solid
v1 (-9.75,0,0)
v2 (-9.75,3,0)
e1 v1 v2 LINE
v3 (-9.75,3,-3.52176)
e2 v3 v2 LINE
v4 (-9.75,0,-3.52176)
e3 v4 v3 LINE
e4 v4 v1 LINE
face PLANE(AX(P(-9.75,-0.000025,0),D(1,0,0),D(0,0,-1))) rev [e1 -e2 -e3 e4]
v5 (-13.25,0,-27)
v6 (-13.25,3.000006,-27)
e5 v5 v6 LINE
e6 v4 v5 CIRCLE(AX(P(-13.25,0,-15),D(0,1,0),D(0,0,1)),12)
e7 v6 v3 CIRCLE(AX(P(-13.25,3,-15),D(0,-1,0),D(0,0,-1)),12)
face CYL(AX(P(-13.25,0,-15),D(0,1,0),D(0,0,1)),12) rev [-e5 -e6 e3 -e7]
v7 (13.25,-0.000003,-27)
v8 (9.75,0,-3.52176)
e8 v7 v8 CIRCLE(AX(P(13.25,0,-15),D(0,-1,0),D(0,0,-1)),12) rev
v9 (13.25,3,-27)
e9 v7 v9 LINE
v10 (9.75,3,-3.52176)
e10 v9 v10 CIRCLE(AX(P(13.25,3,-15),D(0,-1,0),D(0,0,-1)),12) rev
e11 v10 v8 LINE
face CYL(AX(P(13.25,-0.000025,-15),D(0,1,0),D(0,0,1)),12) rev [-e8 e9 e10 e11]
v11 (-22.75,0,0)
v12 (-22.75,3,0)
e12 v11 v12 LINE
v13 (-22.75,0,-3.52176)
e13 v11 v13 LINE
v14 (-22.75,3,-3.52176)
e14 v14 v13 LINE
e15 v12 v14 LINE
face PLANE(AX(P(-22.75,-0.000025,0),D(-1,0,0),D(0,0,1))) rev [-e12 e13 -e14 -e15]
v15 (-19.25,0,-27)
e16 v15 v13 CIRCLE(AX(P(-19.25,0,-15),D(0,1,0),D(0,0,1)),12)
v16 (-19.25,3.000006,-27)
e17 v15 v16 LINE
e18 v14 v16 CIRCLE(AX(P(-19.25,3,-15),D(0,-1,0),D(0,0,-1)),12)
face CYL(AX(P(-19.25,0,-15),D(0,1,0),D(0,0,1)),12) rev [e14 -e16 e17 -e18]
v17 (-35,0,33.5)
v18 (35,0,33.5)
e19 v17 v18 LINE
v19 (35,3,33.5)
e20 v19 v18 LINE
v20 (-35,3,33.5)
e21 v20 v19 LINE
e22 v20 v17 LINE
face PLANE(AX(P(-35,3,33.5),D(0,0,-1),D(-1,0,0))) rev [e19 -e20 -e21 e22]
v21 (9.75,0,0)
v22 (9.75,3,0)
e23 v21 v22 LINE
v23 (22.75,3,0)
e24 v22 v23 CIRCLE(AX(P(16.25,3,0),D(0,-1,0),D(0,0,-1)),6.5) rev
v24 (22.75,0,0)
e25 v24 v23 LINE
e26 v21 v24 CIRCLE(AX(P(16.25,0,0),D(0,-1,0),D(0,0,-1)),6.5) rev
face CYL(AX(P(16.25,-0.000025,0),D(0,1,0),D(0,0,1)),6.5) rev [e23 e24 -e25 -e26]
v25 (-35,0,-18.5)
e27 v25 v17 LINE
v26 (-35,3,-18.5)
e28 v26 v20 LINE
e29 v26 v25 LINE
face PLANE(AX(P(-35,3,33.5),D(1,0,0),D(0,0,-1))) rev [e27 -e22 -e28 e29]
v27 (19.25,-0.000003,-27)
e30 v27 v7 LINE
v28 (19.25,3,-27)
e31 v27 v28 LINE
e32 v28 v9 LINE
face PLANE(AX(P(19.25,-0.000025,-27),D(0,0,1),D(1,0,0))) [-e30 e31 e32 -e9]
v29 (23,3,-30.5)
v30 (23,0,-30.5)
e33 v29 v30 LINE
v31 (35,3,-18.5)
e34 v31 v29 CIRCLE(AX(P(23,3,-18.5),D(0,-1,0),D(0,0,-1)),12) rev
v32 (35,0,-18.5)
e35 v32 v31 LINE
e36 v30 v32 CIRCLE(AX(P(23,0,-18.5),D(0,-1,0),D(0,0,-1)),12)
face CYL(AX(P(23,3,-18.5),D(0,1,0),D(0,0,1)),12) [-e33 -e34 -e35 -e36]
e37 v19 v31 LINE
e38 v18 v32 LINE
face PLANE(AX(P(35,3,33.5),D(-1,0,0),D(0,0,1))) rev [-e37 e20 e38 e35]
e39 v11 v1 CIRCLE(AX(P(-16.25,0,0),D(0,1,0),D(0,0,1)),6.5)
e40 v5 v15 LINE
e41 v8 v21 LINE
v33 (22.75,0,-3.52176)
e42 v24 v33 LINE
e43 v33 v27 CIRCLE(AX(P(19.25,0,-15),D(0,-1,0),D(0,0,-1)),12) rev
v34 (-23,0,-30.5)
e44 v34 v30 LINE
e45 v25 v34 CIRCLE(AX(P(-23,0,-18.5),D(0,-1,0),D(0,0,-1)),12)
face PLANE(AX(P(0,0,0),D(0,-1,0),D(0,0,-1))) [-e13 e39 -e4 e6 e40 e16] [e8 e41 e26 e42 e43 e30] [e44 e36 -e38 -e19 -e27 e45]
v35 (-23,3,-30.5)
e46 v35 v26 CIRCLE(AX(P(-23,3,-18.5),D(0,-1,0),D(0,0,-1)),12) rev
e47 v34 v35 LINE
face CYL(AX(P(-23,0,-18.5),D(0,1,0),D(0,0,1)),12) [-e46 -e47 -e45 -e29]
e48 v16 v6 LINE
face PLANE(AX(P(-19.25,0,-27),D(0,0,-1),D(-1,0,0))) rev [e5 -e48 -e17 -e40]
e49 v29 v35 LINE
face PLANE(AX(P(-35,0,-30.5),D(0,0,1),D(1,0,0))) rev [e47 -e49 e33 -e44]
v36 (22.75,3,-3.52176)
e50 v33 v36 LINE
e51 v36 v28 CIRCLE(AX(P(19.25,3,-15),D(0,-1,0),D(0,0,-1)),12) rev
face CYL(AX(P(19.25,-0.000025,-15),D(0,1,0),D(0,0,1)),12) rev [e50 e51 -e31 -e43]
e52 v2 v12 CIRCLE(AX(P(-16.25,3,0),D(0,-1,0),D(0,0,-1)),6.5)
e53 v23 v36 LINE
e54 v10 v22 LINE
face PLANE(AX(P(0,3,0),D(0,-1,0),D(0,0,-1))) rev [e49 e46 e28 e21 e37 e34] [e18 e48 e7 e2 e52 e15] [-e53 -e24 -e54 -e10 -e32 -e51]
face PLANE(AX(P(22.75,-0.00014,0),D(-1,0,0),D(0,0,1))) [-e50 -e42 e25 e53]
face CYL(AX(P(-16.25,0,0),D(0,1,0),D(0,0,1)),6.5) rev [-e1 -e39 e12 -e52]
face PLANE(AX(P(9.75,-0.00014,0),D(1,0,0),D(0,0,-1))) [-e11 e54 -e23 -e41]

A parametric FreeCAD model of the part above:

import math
import FreeCAD as App
import Part
import Sketcher


def edges_at(feature, points):
    """Names of the edges that pass closest to the given points."""
    edges = feature.Shape.Edges
    near = lambda p: min(range(len(edges)), key=lambda i: edges[i].distToShape(Part.Vertex(*p))[0])
    return sorted({f"Edge{near(p) + 1}" for p in points})


def add_polygon(sketch, points):
    """Adds a closed chain of lines whose ends are joined by coincident constraints."""
    first, n = sketch.GeometryCount, len(points)
    for a, b in zip(points, points[1:] + points[:1]):
        sketch.addGeometry(Part.LineSegment(App.Vector(*a, 0), App.Vector(*b, 0)), False)
    for i in range(n):
        sketch.addConstraint(Sketcher.Constraint("Coincident", first + i, 2, first + (i + 1) % n, 1))

doc = App.newDocument("Part")
body = doc.addObject("PartDesign::Body", "Body")

# Sketch on XZ plane
sketch1 = body.newObject("Sketcher::SketchObject", "Sketch")
sketch1.AttachmentSupport = (doc.getObject("XZ_Plane"), [""])
sketch1.MapMode = "FlatFace"
add_polygon(sketch1, [(-35, -34), (-35, 34), (35, 34), (35, -34)])  # lines 0-3
sketch1.addConstraint([
    Sketcher.Constraint("Vertical", 0),
    Sketcher.Constraint("Horizontal", 1),
    Sketcher.Constraint("Vertical", 2),
    Sketcher.Constraint("Horizontal", 3),
    Sketcher.Constraint("Symmetric", 0, 2, 2, 2, -1, 1),
    Sketcher.Constraint("DistanceX", 1, 1, 1, 2, 70.0),
    Sketcher.Constraint("DistanceY", 0, 1, 0, 2, 67.0),
])
pad1 = body.newObject("PartDesign::Pad", "Pad")
pad1.Profile = sketch1
pad1.Length = 3
pad1.Reversed = True

# Sketch on XZ plane
sketch2 = body.newObject("Sketcher::SketchObject", "Sketch001")
sketch2.AttachmentSupport = (doc.getObject("XZ_Plane"), [""])
sketch2.MapMode = "FlatFace"
sketch2.AttachmentOffset = App.Placement(App.Vector(0, 0, -3), App.Rotation())
add_polygon(sketch2, [(-35, -33.5), (-35, -30.5), (35, -30.5), (35, -33.5)])  # lines 0-3
sketch2.addConstraint([
    Sketcher.Constraint("Vertical", 0),
    Sketcher.Constraint("Horizontal", 1),
    Sketcher.Constraint("Vertical", 2),
    Sketcher.Constraint("Horizontal", 3),
    Sketcher.Constraint("DistanceX", 1, 1, 1, 2, 70.0),
    Sketcher.Constraint("DistanceY", 0, 1, 0, 2, 3.0),
    Sketcher.Constraint("DistanceX", 0, 2, -1, 1, 35.0),
    Sketcher.Constraint("DistanceY", 0, 2, -1, 1, 30.5),
])
pocket1 = body.newObject("PartDesign::Pocket", "Pocket")
pocket1.Profile = sketch2
pocket1.Type = "ThroughAll"
pocket1.Midplane = True
doc.recompute()

fillet = body.newObject("PartDesign::Fillet", "Fillet")
fillet.Base = (pocket1, edges_at(pocket1, [(-35, 1.5, -30.5), (35, 1.5, -30.5)]))
fillet.Radius = 12

# Sketch on XZ plane
sketch3 = body.newObject("Sketcher::SketchObject", "Sketch002")
sketch3.AttachmentSupport = (doc.getObject("XZ_Plane"), [""])
sketch3.MapMode = "FlatFace"
sketch3.AttachmentOffset = App.Placement(App.Vector(0, 0, 1), App.Rotation())
sketch3.addGeometry(Part.Circle(App.Vector(-16, 0, 0), App.Vector(0, 0, 1), 6), False)
sketch3.addConstraint([
    Sketcher.Constraint("PointOnObject", 0, 3, -1),
    Sketcher.Constraint("Diameter", 0, 13.0),
    Sketcher.Constraint("DistanceX", 0, 3, -1, 1, 16.25),
])
pocket2 = body.newObject("PartDesign::Pocket", "Pocket001")
pocket2.Profile = sketch3
pocket2.Length = 5

# Sketch on XZ plane
sketch4 = body.newObject("Sketcher::SketchObject", "Sketch003")
sketch4.AttachmentSupport = (doc.getObject("XZ_Plane"), [""])
sketch4.MapMode = "FlatFace"
sketch4.AttachmentOffset = App.Placement(App.Vector(0, 0, 1), App.Rotation())
sketch4.addGeometry([
    Part.LineSegment(App.Vector(-13, -27, 0), App.Vector(-19, -27, 0)),
    Part.ArcOfCircle(Part.Circle(App.Vector(-19, -15, 0), App.Vector(0, 0, 1), 12), math.radians(90), math.radians(270)),
    Part.LineSegment(App.Vector(-19, -3, 0), App.Vector(-13, -3, 0)),
    Part.ArcOfCircle(Part.Circle(App.Vector(-13, -15, 0), App.Vector(0, 0, 1), 12), math.radians(-90), math.radians(90)),
], False)
sketch4.addConstraint([
    Sketcher.Constraint("Tangent", 0, 2, 1, 2),
    Sketcher.Constraint("Tangent", 1, 1, 2, 1),
    Sketcher.Constraint("Tangent", 2, 2, 3, 2),
    Sketcher.Constraint("Tangent", 3, 1, 0, 1),
    Sketcher.Constraint("Horizontal", 0),
    Sketcher.Constraint("Horizontal", 2),
    Sketcher.Constraint("Radius", 1, 12.0),
    Sketcher.Constraint("DistanceX", 0, 2, 0, 1, 6.0),
    Sketcher.Constraint("DistanceY", 1, 3, -1, 1, 15.0),
    Sketcher.Constraint("DistanceX", 1, 3, -1, 1, 19.25),
])
pocket3 = body.newObject("PartDesign::Pocket", "Pocket002")
pocket3.Profile = sketch4
pocket3.Length = 5

# Sketch on XZ plane
sketch5 = body.newObject("Sketcher::SketchObject", "Sketch004")
sketch5.AttachmentSupport = (doc.getObject("XZ_Plane"), [""])
sketch5.MapMode = "FlatFace"
sketch5.AttachmentOffset = App.Placement(App.Vector(0, 0, 1), App.Rotation())
add_polygon(sketch5, [(-23, -9), (-23, 0), (-10, 0), (-10, -9)])  # lines 0-3
sketch5.addConstraint([
    Sketcher.Constraint("Vertical", 0),
    Sketcher.Constraint("Horizontal", 1),
    Sketcher.Constraint("Vertical", 2),
    Sketcher.Constraint("Horizontal", 3),
    Sketcher.Constraint("PointOnObject", 0, 2, -1),
    Sketcher.Constraint("DistanceX", 1, 1, 1, 2, 13.0),
    Sketcher.Constraint("DistanceX", 0, 2, -1, 1, 22.75),
    Sketcher.Constraint("DistanceY", 0, 1, 0, 2, 8.82806),
])
pocket4 = body.newObject("PartDesign::Pocket", "Pocket003")
pocket4.Profile = sketch5
pocket4.Length = 5
doc.recompute()

mirrored = body.newObject("PartDesign::Mirrored", "Mirrored")
mirrored.Originals = [pocket2, pocket3, pocket4]
mirrored.MirrorPlane = (doc.getObject("YZ_Plane"), [""])
body.Tip = mirrored

doc.recompute()
